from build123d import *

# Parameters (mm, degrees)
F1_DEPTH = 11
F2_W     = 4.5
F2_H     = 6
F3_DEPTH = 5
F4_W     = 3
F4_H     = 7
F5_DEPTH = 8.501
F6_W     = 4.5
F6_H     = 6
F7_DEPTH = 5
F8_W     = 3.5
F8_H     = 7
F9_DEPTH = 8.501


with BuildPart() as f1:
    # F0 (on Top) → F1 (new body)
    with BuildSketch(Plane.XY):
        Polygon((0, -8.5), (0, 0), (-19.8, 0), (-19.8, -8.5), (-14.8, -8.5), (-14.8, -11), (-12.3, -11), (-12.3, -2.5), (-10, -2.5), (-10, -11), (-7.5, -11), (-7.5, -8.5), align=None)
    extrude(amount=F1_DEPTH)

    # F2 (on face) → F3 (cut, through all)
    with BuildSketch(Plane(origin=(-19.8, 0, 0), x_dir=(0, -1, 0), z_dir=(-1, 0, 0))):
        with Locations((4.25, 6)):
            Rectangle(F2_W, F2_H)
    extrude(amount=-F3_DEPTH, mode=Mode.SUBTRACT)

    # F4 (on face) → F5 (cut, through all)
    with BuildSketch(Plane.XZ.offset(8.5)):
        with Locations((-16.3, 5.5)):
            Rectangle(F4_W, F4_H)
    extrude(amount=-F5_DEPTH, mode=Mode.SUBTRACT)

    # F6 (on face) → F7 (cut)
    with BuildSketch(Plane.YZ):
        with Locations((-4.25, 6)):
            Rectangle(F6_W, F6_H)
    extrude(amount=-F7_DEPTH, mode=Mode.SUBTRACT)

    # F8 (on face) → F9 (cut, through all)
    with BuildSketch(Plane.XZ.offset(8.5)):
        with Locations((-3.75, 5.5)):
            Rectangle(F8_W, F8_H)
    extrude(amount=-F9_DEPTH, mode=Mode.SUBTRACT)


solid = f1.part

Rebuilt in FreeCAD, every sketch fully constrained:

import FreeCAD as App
import Part
import Sketcher
from FreeCAD import Vector
Q = App.Units.Quantity

doc = App.newDocument("Part")
params = doc.addObject("Spreadsheet::Sheet", "Params")
for row, (alias, value) in enumerate([
    ("sketch1_width", "5 mm"),
    ("sketch1_width2", "19.8 mm"),
    ("sketch1_width3", "2.5 mm"),
    ("sketch1_width4", "2.3 mm"),
    ("sketch1_height", "8.5 mm"),
    ("pad1_length", "11 mm"),
    ("sketch2_height", "6 mm"),
    ("sketch2_width", "4.5 mm"),
    ("pocket1_length", "5 mm"),
    ("sketch3_width", "3 mm"),
    ("sketch3_height", "7 mm"),
    ("sketch4_height", "6 mm"),
    ("sketch4_width", "4.5 mm"),
    ("pocket3_length", "5 mm"),
    ("sketch5_height", "7 mm"),
    ("sketch5_width", "3.5 mm"),
], start=1):
    params.set(f"A{row}", alias)
    params.set(f"B{row}", "=" + value)
    params.setAlias(f"B{row}", alias)

body = doc.addObject("PartDesign::Body", "Body")

sketch1 = body.newObject("Sketcher::SketchObject", "Sketch")
sketch1.AttachmentSupport = (doc.getObject("XY_Plane"), [""])
sketch1.MapMode = "FlatFace"
sketch1.addGeometry([
    Part.LineSegment(Vector(0, -8.5, 0), Vector(0, 0, 0)),
    Part.LineSegment(Vector(0, 0, 0), Vector(-19.8, 0, 0)),
    Part.LineSegment(Vector(-19.8, 0, 0), Vector(-19.8, -8.5, 0)),
    Part.LineSegment(Vector(-19.8, -8.5, 0), Vector(-14.8, -8.5, 0)),
    Part.LineSegment(Vector(-14.8, -8.5, 0), Vector(-14.8, -11, 0)),
    Part.LineSegment(Vector(-14.8, -11, 0), Vector(-12.3, -11, 0)),
    Part.LineSegment(Vector(-12.3, -11, 0), Vector(-12.3, -2.5, 0)),
    Part.LineSegment(Vector(-12.3, -2.5, 0), Vector(-10, -2.5, 0)),
    Part.LineSegment(Vector(-10, -2.5, 0), Vector(-10, -11, 0)),
    Part.LineSegment(Vector(-10, -11, 0), Vector(-7.5, -11, 0)),
    Part.LineSegment(Vector(-7.5, -11, 0), Vector(-7.5, -8.5, 0)),
    Part.LineSegment(Vector(-7.5, -8.5, 0), Vector(0, -8.5, 0)),
], False)
sketch1.addConstraint([
    Sketcher.Constraint("Coincident", 0, 2, 1, 1),
    Sketcher.Constraint("Coincident", 1, 2, 2, 1),
    Sketcher.Constraint("Coincident", 2, 2, 3, 1),
    Sketcher.Constraint("Coincident", 3, 2, 4, 1),
    Sketcher.Constraint("Coincident", 4, 2, 5, 1),
    Sketcher.Constraint("Coincident", 5, 2, 6, 1),
    Sketcher.Constraint("Coincident", 6, 2, 7, 1),
    Sketcher.Constraint("Coincident", 7, 2, 8, 1),
    Sketcher.Constraint("Coincident", 8, 2, 9, 1),
    Sketcher.Constraint("Coincident", 9, 2, 10, 1),
    Sketcher.Constraint("Coincident", 10, 2, 11, 1),
    Sketcher.Constraint("Coincident", 11, 2, 0, 1),
    Sketcher.Constraint("Vertical", 0),
    Sketcher.Constraint("Horizontal", 1),
    Sketcher.Constraint("Vertical", 2),
    Sketcher.Constraint("Horizontal", 3),
    Sketcher.Constraint("Vertical", 4),
    Sketcher.Constraint("Horizontal", 5),
    Sketcher.Constraint("Vertical", 6),
    Sketcher.Constraint("Horizontal", 7),
    Sketcher.Constraint("Vertical", 8),
    Sketcher.Constraint("Horizontal", 9),
    Sketcher.Constraint("Vertical", 10),
    Sketcher.Constraint("Horizontal", 11),
    Sketcher.Constraint("Coincident", 0, 2, -1, 1),
    Sketcher.Constraint("Horizontal", 5, 2, 8, 2),
    Sketcher.Constraint("Horizontal", 3, 2, 10, 2),
    Sketcher.Constraint("Equal", 5, 9),
    Sketcher.Constraint("Equal", 9, 4),
    Sketcher.Constraint("Equal", 2, 6),
    Sketcher.Constraint("DistanceX", 3, 1, 3, 2, Q("5 mm")),
    Sketcher.Constraint("DistanceX", 1, 2, 1, 1, Q("19.8 mm")),
    Sketcher.Constraint("DistanceX", 5, 1, 5, 2, Q("2.5 mm")),
    Sketcher.Constraint("DistanceX", 7, 1, 7, 2, Q("2.3 mm")),
    Sketcher.Constraint("DistanceY", 0, 1, 0, 2, Q("8.5 mm")),
])
sketch1.setExpression("Constraints[30]", "Params.sketch1_width")
sketch1.setExpression("Constraints[31]", "Params.sketch1_width2")
sketch1.setExpression("Constraints[32]", "Params.sketch1_width3")
sketch1.setExpression("Constraints[33]", "Params.sketch1_width4")
sketch1.setExpression("Constraints[34]", "Params.sketch1_height")
pad1 = body.newObject("PartDesign::Pad", "Pad")
pad1.Profile = sketch1
pad1.setExpression("Length", "Params.pad1_length")

sketch2 = body.newObject("Sketcher::SketchObject", "Sketch001")
sketch2.AttachmentSupport = (doc.getObject("YZ_Plane"), [""])
sketch2.MapMode = "FlatFace"
sketch2.AttachmentOffset = App.Placement(Vector(0, 0, -19.8), App.Rotation())
sketch2.addGeometry([
    Part.LineSegment(Vector(-2, 9, 0), Vector(-2, 3, 0)),
    Part.LineSegment(Vector(-2, 3, 0), Vector(-6.5, 3, 0)),
    Part.LineSegment(Vector(-6.5, 3, 0), Vector(-6.5, 9, 0)),
    Part.LineSegment(Vector(-6.5, 9, 0), Vector(-2, 9, 0)),
], False)
sketch2.addConstraint([
    Sketcher.Constraint("Coincident", 0, 2, 1, 1),
    Sketcher.Constraint("Coincident", 1, 2, 2, 1),
    Sketcher.Constraint("Coincident", 2, 2, 3, 1),
    Sketcher.Constraint("Coincident", 3, 2, 0, 1),
    Sketcher.Constraint("Vertical", 0),
    Sketcher.Constraint("Horizontal", 1),
    Sketcher.Constraint("Vertical", 2),
    Sketcher.Constraint("Horizontal", 3),
    Sketcher.Constraint("DistanceY", 0, 2, 0, 1, Q("6 mm")),
    Sketcher.Constraint("DistanceX", 1, 2, 1, 1, Q("4.5 mm")),
    Sketcher.Constraint("DistanceX", 0, 2, -1, 1, Q("2 mm")),
    Sketcher.Constraint("DistanceY", -1, 1, 0, 2, Q("3 mm")),
])
sketch2.setExpression("Constraints[8]", "Params.sketch2_height")
sketch2.setExpression("Constraints[9]", "Params.sketch2_width")
pocket1 = body.newObject("PartDesign::Pocket", "Pocket")
pocket1.Profile = sketch2
pocket1.setExpression("Length", "Params.pocket1_length")
pocket1.Reversed = True

sketch3 = body.newObject("Sketcher::SketchObject", "Sketch002")
sketch3.AttachmentSupport = (doc.getObject("XZ_Plane"), [""])
sketch3.MapMode = "FlatFace"
sketch3.AttachmentOffset = App.Placement(Vector(0, 0, 8.5), App.Rotation())
sketch3.addGeometry([
    Part.LineSegment(Vector(-17.8, 9, 0), Vector(-17.8, 2, 0)),
    Part.LineSegment(Vector(-17.8, 2, 0), Vector(-14.8, 2, 0)),
    Part.LineSegment(Vector(-14.8, 2, 0), Vector(-14.8, 9, 0)),
    Part.LineSegment(Vector(-14.8, 9, 0), Vector(-17.8, 9, 0)),
], False)
sketch3.addConstraint([
    Sketcher.Constraint("Coincident", 0, 2, 1, 1),
    Sketcher.Constraint("Coincident", 1, 2, 2, 1),
    Sketcher.Constraint("Coincident", 2, 2, 3, 1),
    Sketcher.Constraint("Coincident", 3, 2, 0, 1),
    Sketcher.Constraint("Vertical", 0),
    Sketcher.Constraint("Horizontal", 1),
    Sketcher.Constraint("Vertical", 2),
    Sketcher.Constraint("Horizontal", 3),
    Sketcher.Constraint("DistanceX", 1, 1, 1, 2, Q("3 mm")),
    Sketcher.Constraint("DistanceY", 0, 2, 0, 1, Q("7 mm")),
    Sketcher.Constraint("DistanceY", -1, 1, 0, 2, Q("2 mm")),
    Sketcher.Constraint("DistanceX", 0, 2, -1, 1, Q("17.8 mm")),
])
sketch3.setExpression("Constraints[8]", "Params.sketch3_width")
sketch3.setExpression("Constraints[9]", "Params.sketch3_height")
pocket2 = body.newObject("PartDesign::Pocket", "Pocket001")
pocket2.Profile = sketch3
pocket2.Type = "ThroughAll"

sketch4 = body.newObject("Sketcher::SketchObject", "Sketch003")
sketch4.AttachmentSupport = (doc.getObject("YZ_Plane"), [""])
sketch4.MapMode = "FlatFace"
sketch4.addGeometry([
    Part.LineSegment(Vector(-6.5, 9, 0), Vector(-6.5, 3, 0)),
    Part.LineSegment(Vector(-6.5, 3, 0), Vector(-2, 3, 0)),
    Part.LineSegment(Vector(-2, 3, 0), Vector(-2, 9, 0)),
    Part.LineSegment(Vector(-2, 9, 0), Vector(-6.5, 9, 0)),
], False)
sketch4.addConstraint([
    Sketcher.Constraint("Coincident", 0, 2, 1, 1),
    Sketcher.Constraint("Coincident", 1, 2, 2, 1),
    Sketcher.Constraint("Coincident", 2, 2, 3, 1),
    Sketcher.Constraint("Coincident", 3, 2, 0, 1),
    Sketcher.Constraint("Vertical", 0),
    Sketcher.Constraint("Horizontal", 1),
    Sketcher.Constraint("Vertical", 2),
    Sketcher.Constraint("Horizontal", 3),
    Sketcher.Constraint("DistanceY", 0, 2, 0, 1, Q("6 mm")),
    Sketcher.Constraint("DistanceX", 1, 1, 1, 2, Q("4.5 mm")),
    Sketcher.Constraint("DistanceY", -1, 1, 0, 2, Q("3 mm")),
    Sketcher.Constraint("DistanceX", 1, 2, -1, 1, Q("2 mm")),
])
sketch4.setExpression("Constraints[8]", "Params.sketch4_height")
sketch4.setExpression("Constraints[9]", "Params.sketch4_width")
pocket3 = body.newObject("PartDesign::Pocket", "Pocket002")
pocket3.Profile = sketch4
pocket3.setExpression("Length", "Params.pocket3_length")

sketch5 = body.newObject("Sketcher::SketchObject", "Sketch004")
sketch5.AttachmentSupport = (doc.getObject("XZ_Plane"), [""])
sketch5.MapMode = "FlatFace"
sketch5.AttachmentOffset = App.Placement(Vector(0, 0, 8.5), App.Rotation())
sketch5.addGeometry([
    Part.LineSegment(Vector(-5.5, 9, 0), Vector(-5.5, 2, 0)),
    Part.LineSegment(Vector(-5.5, 2, 0), Vector(-2, 2, 0)),
    Part.LineSegment(Vector(-2, 2, 0), Vector(-2, 9, 0)),
    Part.LineSegment(Vector(-2, 9, 0), Vector(-5.5, 9, 0)),
], False)
sketch5.addConstraint([
    Sketcher.Constraint("Coincident", 0, 2, 1, 1),
    Sketcher.Constraint("Coincident", 1, 2, 2, 1),
    Sketcher.Constraint("Coincident", 2, 2, 3, 1),
    Sketcher.Constraint("Coincident", 3, 2, 0, 1),
    Sketcher.Constraint("Vertical", 0),
    Sketcher.Constraint("Horizontal", 1),
    Sketcher.Constraint("Vertical", 2),
    Sketcher.Constraint("Horizontal", 3),
    Sketcher.Constraint("DistanceY", 0, 2, 0, 1, Q("7 mm")),
    Sketcher.Constraint("DistanceX", 1, 1, 1, 2, Q("3.5 mm")),
    Sketcher.Constraint("DistanceY", -1, 1, 0, 2, Q("2 mm")),
    Sketcher.Constraint("DistanceX", 1, 2, -1, 1, Q("2 mm")),
])
sketch5.setExpression("Constraints[8]", "Params.sketch5_height")
sketch5.setExpression("Constraints[9]", "Params.sketch5_width")
pocket4 = body.newObject("PartDesign::Pocket", "Pocket003")
pocket4.Profile = sketch5
pocket4.Type = "ThroughAll"

doc.recompute()
